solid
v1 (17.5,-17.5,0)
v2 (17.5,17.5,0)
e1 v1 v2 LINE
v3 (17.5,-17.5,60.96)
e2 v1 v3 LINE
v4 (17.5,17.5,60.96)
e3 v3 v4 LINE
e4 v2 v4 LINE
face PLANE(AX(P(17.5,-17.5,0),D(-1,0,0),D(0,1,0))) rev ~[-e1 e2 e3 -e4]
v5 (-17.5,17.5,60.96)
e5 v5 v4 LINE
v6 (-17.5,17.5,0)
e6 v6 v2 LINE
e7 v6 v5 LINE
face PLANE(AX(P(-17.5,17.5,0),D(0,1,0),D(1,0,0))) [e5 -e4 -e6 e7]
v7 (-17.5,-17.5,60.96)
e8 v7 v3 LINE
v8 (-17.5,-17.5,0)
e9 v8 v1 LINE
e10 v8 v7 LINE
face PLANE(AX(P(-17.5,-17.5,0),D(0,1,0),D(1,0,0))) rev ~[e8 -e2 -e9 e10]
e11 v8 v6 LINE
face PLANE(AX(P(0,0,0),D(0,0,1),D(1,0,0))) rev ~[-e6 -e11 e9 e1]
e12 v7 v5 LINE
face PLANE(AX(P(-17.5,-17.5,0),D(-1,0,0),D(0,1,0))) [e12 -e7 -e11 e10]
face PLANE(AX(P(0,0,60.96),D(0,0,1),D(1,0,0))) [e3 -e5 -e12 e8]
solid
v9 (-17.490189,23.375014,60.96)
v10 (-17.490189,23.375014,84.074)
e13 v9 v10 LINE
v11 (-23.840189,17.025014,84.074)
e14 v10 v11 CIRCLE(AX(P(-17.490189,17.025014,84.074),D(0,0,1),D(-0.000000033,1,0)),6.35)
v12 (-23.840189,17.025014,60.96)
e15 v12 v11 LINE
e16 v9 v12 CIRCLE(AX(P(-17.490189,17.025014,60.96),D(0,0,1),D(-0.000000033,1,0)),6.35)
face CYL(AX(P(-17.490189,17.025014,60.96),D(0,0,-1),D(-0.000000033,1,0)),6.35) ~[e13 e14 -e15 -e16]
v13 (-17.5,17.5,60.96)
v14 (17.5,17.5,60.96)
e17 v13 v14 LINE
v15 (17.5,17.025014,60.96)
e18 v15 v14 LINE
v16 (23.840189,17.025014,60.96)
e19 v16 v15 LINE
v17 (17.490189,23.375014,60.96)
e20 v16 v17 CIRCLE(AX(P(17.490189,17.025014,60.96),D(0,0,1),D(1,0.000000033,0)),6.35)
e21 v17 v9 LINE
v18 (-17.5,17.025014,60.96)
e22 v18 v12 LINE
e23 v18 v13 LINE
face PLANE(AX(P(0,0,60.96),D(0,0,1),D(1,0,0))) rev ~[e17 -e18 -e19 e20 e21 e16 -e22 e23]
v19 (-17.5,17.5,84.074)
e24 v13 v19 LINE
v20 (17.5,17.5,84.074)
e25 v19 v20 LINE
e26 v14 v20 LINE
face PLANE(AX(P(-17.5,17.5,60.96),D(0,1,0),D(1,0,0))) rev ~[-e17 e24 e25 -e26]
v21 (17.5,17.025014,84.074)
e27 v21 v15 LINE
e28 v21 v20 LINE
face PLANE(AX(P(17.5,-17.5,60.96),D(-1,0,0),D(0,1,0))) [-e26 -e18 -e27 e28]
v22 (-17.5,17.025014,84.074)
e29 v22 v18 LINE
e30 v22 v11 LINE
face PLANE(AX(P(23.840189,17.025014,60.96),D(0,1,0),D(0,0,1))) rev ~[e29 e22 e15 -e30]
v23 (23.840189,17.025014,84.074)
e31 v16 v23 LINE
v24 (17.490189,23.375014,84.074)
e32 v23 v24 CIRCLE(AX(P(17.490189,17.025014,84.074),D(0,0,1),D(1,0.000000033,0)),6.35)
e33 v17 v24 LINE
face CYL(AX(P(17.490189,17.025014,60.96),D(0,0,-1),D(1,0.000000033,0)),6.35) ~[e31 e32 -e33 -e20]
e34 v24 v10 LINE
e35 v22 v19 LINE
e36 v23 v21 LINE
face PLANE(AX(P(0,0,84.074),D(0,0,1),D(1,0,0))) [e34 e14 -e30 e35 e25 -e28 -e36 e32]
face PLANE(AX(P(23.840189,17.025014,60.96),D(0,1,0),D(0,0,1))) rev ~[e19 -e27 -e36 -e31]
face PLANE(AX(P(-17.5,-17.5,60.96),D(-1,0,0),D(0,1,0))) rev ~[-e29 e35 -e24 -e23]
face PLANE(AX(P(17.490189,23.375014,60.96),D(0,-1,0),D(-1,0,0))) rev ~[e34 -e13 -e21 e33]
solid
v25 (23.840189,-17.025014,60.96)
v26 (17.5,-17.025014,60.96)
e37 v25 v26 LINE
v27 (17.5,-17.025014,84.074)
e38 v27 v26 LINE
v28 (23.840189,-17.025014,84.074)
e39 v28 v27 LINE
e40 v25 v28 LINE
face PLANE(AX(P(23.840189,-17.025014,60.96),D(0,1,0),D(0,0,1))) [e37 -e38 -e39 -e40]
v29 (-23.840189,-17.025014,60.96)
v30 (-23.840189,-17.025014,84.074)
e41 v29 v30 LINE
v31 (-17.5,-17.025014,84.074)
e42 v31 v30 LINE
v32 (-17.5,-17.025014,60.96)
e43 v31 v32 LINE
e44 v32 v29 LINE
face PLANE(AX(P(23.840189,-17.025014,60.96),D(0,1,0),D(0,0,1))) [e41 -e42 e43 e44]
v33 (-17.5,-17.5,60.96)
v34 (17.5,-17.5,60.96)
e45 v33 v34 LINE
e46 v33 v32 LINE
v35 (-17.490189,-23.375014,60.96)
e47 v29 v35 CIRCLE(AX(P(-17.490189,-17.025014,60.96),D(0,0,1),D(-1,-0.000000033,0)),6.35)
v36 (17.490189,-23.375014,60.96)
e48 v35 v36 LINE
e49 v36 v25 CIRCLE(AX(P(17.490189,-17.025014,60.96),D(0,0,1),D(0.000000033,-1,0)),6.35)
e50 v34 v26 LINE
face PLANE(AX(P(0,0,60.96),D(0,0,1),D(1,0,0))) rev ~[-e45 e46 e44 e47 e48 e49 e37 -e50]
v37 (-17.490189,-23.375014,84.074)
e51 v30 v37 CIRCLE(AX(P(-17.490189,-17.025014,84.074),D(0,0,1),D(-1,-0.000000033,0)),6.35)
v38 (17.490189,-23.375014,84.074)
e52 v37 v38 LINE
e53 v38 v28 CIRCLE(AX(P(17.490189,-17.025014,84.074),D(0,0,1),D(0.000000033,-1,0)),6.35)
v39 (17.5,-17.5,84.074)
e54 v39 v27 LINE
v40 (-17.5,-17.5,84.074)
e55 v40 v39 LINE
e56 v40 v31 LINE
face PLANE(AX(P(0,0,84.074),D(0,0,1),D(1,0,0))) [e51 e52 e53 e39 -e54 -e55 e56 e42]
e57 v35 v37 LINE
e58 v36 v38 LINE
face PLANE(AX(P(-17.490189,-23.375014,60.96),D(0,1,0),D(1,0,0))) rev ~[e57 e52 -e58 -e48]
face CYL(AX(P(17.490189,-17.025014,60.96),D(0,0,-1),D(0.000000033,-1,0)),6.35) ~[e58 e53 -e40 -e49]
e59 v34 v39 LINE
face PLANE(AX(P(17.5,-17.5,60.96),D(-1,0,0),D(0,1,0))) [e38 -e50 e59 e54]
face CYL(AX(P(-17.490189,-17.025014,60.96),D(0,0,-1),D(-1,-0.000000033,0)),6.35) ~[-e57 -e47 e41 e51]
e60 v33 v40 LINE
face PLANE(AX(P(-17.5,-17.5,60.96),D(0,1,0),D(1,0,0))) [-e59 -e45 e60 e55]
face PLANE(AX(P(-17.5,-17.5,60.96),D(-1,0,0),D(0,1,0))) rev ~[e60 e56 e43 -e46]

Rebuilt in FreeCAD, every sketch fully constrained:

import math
import FreeCAD as App
import Part
import Sketcher
from FreeCAD import Vector
Q = App.Units.Quantity


def add_polygon(sketch, points):
    """Adds a closed chain of lines whose ends are joined by coincident constraints."""
    first, n = sketch.GeometryCount, len(points)
    for a, b in zip(points, points[1:] + points[:1]):
        sketch.addGeometry(Part.LineSegment(App.Vector(*a, 0), App.Vector(*b, 0)), False)
    for i in range(n):
        sketch.addConstraint(Sketcher.Constraint("Coincident", first + i, 2, first + (i + 1) % n, 1))

doc = App.newDocument("Part")
params = doc.addObject("Spreadsheet::Sheet", "Params")
for row, (alias, value) in enumerate([
    ("pad1_length", "2.4 in"),
    ("sketch2_radius", "0.25 in"),
    ("pad2_length", "0.91 in"),
    ("sketch3_height", "0.91 in"),
    ("pocket1_length", "2.54 in"),
], start=1):
    params.set(f"A{row}", alias)
    params.set(f"B{row}", "=" + value)
    params.setAlias(f"B{row}", alias)

body = doc.addObject("PartDesign::Body", "Body")

sketch1 = doc.addObject("Sketcher::SketchObject", "Sketch")
body.addObject(sketch1)
sketch1.AttachmentSupport = (doc.XY_Plane, [""])
sketch1.MapMode = "FlatFace"
add_polygon(sketch1, [(-17.5, 17.5), (-17.5, -17.5), (17.5, -17.5), (17.5, 17.5)])
sketch1.addConstraint(Sketcher.Constraint("Vertical", 0))
sketch1.addConstraint(Sketcher.Constraint("Horizontal", 1))
sketch1.addConstraint(Sketcher.Constraint("Vertical", 2))
sketch1.addConstraint(Sketcher.Constraint("Horizontal", 3))
sketch1.addConstraint(Sketcher.Constraint("Symmetric", 0, 2, 2, 2, -1, 1))
sketch1.addConstraint(Sketcher.Constraint("Equal", 3, 0))
sketch1.addConstraint(Sketcher.Constraint("DistanceX", 1, 1, 1, 2, Q("35 mm")))
pad1 = doc.addObject("PartDesign::Pad", "Pad")
body.addObject(pad1)
pad1.Profile = sketch1
pad1.setExpression("Length", "Params.pad1_length")
body2 = doc.addObject("PartDesign::Body", "Body001")
body2.AllowCompound = True

sketch2 = doc.addObject("Sketcher::SketchObject", "Sketch001")
body2.addObject(sketch2)
sketch2.AttachmentSupport = (doc.getObject("XY_Plane001"), [""])
sketch2.MapMode = "FlatFace"
sketch2.AttachmentOffset = App.Placement(Vector(0, 0, 2.4 * 25.4), App.Rotation())
sketch2.addGeometry(Part.LineSegment(Vector(17.490189, 23.375014, 0), Vector(-17.490189, 23.375014, 0)), False)
sketch2.addGeometry(Part.ArcOfCircle(Part.Circle(Vector(-17.490189, 17.025014, 0), Vector(0, 0, 1), 6.35), math.radians(90.000002), math.radians(179.999998)), False)
sketch2.addGeometry(Part.LineSegment(Vector(-23.840189, 17.025014, 0), Vector(-23.840189, -17.025014, 0)), False)
sketch2.addGeometry(Part.ArcOfCircle(Part.Circle(Vector(-17.490189, -17.025014, 0), Vector(0, 0, 1), 6.35), math.radians(-179.999998), math.radians(-90.000002)), False)
sketch2.addGeometry(Part.LineSegment(Vector(-17.490189, -23.375014, 0), Vector(17.490189, -23.375014, 0)), False)
sketch2.addGeometry(Part.ArcOfCircle(Part.Circle(Vector(17.490189, -17.025014, 0), Vector(0, 0, 1), 6.35), math.radians(-89.999998), math.radians(-0.000002)), False)
sketch2.addGeometry(Part.LineSegment(Vector(23.840189, -17.025014, 0), Vector(23.840189, 17.025014, 0)), False)
sketch2.addGeometry(Part.ArcOfCircle(Part.Circle(Vector(17.490189, 17.025014, 0), Vector(0, 0, 1), 6.35), math.radians(0.000002), math.radians(89.999998)), False)
add_polygon(sketch2, [(17.5, -17.5), (-17.5, -17.5), (-17.5, 17.5), (17.5, 17.5)])
sketch2.addConstraint(Sketcher.Constraint("Tangent", 0, 2, 1, 1))
sketch2.addConstraint(Sketcher.Constraint("Tangent", 1, 2, 2, 1))
sketch2.addConstraint(Sketcher.Constraint("Tangent", 2, 2, 3, 1))
sketch2.addConstraint(Sketcher.Constraint("Tangent", 3, 2, 4, 1))
sketch2.addConstraint(Sketcher.Constraint("Tangent", 4, 2, 5, 1))
sketch2.addConstraint(Sketcher.Constraint("Tangent", 5, 2, 6, 1))
sketch2.addConstraint(Sketcher.Constraint("Tangent", 6, 2, 7, 1))
sketch2.addConstraint(Sketcher.Constraint("Tangent", 7, 2, 0, 1))
sketch2.addConstraint(Sketcher.Constraint("Horizontal", 0))
sketch2.addConstraint(Sketcher.Constraint("Vertical", 2))
sketch2.addConstraint(Sketcher.Constraint("Horizontal", 4))
sketch2.addConstraint(Sketcher.Constraint("Vertical", 6))
sketch2.addConstraint(Sketcher.Constraint("Horizontal", 8))
sketch2.addConstraint(Sketcher.Constraint("Vertical", 9))
sketch2.addConstraint(Sketcher.Constraint("Horizontal", 10))
sketch2.addConstraint(Sketcher.Constraint("Vertical", 11))
sketch2.addConstraint(Sketcher.Constraint("Equal", 1, 3))
sketch2.addConstraint(Sketcher.Constraint("Equal", 3, 5))
sketch2.addConstraint(Sketcher.Constraint("Equal", 5, 7))
sketch2.addConstraint(Sketcher.Constraint("Symmetric", 1, 3, 5, 3, -1, 1))
sketch2.addConstraint(Sketcher.Constraint("Symmetric", 8, 2, 10, 2, -1, 1))
sketch2.addConstraint(Sketcher.Constraint("Equal", 10, 9))
sketch2.addConstraint(Sketcher.Constraint("Radius", 1, Q("0.25 in")))
sketch2.addConstraint(Sketcher.Constraint("DistanceX", 8, 2, 8, 1, Q("35 mm")))
sketch2.addConstraint(Sketcher.Constraint("DistanceX", 0, 2, 0, 1, Q("34.980378 mm")))
sketch2.addConstraint(Sketcher.Constraint("DistanceY", 2, 2, 2, 1, Q("34.050028 mm")))
sketch2.setExpression("Constraints[26]", "Params.sketch2_radius")
pad2 = doc.addObject("PartDesign::Pad", "Pad001")
body2.addObject(pad2)
pad2.Profile = sketch2
pad2.setExpression("Length", "Params.pad2_length")

sketch3 = doc.addObject("Sketcher::SketchObject", "Sketch002")
body2.addObject(sketch3)
sketch3.AttachmentSupport = (doc.getObject("YZ_Plane001"), [""])
sketch3.MapMode = "FlatFace"
sketch3.AttachmentOffset = App.Placement(Vector(0, 0, 23.840189), App.Rotation())
add_polygon(sketch3, [(-17.025014, 84.074), (-17.025014, 60.96), (17.025014, 60.96), (17.025014, 84.074)])
sketch3.addConstraint(Sketcher.Constraint("Vertical", 0))
sketch3.addConstraint(Sketcher.Constraint("Horizontal", 1))
sketch3.addConstraint(Sketcher.Constraint("Vertical", 2))
sketch3.addConstraint(Sketcher.Constraint("Horizontal", 3))
sketch3.addConstraint(Sketcher.Constraint("DistanceY", 0, 2, 0, 1, Q("0.91 in")))
sketch3.addConstraint(Sketcher.Constraint("DistanceY", -1, 1, 0, 2, Q("2.4 in")))
sketch3.addConstraint(Sketcher.Constraint("DistanceX", 1, 1, 1, 2, Q("34.050028 mm")))
sketch3.addConstraint(Sketcher.Constraint("DistanceX", 0, 2, -1, 1, Q("17.025014 mm")))
sketch3.setExpression("Constraints[8]", "Params.sketch3_height")
pocket1 = doc.addObject("PartDesign::Pocket", "Pocket")
body2.addObject(pocket1)
pocket1.Profile = sketch3
pocket1.setExpression("Length", "Params.pocket1_length")

doc.recompute()
